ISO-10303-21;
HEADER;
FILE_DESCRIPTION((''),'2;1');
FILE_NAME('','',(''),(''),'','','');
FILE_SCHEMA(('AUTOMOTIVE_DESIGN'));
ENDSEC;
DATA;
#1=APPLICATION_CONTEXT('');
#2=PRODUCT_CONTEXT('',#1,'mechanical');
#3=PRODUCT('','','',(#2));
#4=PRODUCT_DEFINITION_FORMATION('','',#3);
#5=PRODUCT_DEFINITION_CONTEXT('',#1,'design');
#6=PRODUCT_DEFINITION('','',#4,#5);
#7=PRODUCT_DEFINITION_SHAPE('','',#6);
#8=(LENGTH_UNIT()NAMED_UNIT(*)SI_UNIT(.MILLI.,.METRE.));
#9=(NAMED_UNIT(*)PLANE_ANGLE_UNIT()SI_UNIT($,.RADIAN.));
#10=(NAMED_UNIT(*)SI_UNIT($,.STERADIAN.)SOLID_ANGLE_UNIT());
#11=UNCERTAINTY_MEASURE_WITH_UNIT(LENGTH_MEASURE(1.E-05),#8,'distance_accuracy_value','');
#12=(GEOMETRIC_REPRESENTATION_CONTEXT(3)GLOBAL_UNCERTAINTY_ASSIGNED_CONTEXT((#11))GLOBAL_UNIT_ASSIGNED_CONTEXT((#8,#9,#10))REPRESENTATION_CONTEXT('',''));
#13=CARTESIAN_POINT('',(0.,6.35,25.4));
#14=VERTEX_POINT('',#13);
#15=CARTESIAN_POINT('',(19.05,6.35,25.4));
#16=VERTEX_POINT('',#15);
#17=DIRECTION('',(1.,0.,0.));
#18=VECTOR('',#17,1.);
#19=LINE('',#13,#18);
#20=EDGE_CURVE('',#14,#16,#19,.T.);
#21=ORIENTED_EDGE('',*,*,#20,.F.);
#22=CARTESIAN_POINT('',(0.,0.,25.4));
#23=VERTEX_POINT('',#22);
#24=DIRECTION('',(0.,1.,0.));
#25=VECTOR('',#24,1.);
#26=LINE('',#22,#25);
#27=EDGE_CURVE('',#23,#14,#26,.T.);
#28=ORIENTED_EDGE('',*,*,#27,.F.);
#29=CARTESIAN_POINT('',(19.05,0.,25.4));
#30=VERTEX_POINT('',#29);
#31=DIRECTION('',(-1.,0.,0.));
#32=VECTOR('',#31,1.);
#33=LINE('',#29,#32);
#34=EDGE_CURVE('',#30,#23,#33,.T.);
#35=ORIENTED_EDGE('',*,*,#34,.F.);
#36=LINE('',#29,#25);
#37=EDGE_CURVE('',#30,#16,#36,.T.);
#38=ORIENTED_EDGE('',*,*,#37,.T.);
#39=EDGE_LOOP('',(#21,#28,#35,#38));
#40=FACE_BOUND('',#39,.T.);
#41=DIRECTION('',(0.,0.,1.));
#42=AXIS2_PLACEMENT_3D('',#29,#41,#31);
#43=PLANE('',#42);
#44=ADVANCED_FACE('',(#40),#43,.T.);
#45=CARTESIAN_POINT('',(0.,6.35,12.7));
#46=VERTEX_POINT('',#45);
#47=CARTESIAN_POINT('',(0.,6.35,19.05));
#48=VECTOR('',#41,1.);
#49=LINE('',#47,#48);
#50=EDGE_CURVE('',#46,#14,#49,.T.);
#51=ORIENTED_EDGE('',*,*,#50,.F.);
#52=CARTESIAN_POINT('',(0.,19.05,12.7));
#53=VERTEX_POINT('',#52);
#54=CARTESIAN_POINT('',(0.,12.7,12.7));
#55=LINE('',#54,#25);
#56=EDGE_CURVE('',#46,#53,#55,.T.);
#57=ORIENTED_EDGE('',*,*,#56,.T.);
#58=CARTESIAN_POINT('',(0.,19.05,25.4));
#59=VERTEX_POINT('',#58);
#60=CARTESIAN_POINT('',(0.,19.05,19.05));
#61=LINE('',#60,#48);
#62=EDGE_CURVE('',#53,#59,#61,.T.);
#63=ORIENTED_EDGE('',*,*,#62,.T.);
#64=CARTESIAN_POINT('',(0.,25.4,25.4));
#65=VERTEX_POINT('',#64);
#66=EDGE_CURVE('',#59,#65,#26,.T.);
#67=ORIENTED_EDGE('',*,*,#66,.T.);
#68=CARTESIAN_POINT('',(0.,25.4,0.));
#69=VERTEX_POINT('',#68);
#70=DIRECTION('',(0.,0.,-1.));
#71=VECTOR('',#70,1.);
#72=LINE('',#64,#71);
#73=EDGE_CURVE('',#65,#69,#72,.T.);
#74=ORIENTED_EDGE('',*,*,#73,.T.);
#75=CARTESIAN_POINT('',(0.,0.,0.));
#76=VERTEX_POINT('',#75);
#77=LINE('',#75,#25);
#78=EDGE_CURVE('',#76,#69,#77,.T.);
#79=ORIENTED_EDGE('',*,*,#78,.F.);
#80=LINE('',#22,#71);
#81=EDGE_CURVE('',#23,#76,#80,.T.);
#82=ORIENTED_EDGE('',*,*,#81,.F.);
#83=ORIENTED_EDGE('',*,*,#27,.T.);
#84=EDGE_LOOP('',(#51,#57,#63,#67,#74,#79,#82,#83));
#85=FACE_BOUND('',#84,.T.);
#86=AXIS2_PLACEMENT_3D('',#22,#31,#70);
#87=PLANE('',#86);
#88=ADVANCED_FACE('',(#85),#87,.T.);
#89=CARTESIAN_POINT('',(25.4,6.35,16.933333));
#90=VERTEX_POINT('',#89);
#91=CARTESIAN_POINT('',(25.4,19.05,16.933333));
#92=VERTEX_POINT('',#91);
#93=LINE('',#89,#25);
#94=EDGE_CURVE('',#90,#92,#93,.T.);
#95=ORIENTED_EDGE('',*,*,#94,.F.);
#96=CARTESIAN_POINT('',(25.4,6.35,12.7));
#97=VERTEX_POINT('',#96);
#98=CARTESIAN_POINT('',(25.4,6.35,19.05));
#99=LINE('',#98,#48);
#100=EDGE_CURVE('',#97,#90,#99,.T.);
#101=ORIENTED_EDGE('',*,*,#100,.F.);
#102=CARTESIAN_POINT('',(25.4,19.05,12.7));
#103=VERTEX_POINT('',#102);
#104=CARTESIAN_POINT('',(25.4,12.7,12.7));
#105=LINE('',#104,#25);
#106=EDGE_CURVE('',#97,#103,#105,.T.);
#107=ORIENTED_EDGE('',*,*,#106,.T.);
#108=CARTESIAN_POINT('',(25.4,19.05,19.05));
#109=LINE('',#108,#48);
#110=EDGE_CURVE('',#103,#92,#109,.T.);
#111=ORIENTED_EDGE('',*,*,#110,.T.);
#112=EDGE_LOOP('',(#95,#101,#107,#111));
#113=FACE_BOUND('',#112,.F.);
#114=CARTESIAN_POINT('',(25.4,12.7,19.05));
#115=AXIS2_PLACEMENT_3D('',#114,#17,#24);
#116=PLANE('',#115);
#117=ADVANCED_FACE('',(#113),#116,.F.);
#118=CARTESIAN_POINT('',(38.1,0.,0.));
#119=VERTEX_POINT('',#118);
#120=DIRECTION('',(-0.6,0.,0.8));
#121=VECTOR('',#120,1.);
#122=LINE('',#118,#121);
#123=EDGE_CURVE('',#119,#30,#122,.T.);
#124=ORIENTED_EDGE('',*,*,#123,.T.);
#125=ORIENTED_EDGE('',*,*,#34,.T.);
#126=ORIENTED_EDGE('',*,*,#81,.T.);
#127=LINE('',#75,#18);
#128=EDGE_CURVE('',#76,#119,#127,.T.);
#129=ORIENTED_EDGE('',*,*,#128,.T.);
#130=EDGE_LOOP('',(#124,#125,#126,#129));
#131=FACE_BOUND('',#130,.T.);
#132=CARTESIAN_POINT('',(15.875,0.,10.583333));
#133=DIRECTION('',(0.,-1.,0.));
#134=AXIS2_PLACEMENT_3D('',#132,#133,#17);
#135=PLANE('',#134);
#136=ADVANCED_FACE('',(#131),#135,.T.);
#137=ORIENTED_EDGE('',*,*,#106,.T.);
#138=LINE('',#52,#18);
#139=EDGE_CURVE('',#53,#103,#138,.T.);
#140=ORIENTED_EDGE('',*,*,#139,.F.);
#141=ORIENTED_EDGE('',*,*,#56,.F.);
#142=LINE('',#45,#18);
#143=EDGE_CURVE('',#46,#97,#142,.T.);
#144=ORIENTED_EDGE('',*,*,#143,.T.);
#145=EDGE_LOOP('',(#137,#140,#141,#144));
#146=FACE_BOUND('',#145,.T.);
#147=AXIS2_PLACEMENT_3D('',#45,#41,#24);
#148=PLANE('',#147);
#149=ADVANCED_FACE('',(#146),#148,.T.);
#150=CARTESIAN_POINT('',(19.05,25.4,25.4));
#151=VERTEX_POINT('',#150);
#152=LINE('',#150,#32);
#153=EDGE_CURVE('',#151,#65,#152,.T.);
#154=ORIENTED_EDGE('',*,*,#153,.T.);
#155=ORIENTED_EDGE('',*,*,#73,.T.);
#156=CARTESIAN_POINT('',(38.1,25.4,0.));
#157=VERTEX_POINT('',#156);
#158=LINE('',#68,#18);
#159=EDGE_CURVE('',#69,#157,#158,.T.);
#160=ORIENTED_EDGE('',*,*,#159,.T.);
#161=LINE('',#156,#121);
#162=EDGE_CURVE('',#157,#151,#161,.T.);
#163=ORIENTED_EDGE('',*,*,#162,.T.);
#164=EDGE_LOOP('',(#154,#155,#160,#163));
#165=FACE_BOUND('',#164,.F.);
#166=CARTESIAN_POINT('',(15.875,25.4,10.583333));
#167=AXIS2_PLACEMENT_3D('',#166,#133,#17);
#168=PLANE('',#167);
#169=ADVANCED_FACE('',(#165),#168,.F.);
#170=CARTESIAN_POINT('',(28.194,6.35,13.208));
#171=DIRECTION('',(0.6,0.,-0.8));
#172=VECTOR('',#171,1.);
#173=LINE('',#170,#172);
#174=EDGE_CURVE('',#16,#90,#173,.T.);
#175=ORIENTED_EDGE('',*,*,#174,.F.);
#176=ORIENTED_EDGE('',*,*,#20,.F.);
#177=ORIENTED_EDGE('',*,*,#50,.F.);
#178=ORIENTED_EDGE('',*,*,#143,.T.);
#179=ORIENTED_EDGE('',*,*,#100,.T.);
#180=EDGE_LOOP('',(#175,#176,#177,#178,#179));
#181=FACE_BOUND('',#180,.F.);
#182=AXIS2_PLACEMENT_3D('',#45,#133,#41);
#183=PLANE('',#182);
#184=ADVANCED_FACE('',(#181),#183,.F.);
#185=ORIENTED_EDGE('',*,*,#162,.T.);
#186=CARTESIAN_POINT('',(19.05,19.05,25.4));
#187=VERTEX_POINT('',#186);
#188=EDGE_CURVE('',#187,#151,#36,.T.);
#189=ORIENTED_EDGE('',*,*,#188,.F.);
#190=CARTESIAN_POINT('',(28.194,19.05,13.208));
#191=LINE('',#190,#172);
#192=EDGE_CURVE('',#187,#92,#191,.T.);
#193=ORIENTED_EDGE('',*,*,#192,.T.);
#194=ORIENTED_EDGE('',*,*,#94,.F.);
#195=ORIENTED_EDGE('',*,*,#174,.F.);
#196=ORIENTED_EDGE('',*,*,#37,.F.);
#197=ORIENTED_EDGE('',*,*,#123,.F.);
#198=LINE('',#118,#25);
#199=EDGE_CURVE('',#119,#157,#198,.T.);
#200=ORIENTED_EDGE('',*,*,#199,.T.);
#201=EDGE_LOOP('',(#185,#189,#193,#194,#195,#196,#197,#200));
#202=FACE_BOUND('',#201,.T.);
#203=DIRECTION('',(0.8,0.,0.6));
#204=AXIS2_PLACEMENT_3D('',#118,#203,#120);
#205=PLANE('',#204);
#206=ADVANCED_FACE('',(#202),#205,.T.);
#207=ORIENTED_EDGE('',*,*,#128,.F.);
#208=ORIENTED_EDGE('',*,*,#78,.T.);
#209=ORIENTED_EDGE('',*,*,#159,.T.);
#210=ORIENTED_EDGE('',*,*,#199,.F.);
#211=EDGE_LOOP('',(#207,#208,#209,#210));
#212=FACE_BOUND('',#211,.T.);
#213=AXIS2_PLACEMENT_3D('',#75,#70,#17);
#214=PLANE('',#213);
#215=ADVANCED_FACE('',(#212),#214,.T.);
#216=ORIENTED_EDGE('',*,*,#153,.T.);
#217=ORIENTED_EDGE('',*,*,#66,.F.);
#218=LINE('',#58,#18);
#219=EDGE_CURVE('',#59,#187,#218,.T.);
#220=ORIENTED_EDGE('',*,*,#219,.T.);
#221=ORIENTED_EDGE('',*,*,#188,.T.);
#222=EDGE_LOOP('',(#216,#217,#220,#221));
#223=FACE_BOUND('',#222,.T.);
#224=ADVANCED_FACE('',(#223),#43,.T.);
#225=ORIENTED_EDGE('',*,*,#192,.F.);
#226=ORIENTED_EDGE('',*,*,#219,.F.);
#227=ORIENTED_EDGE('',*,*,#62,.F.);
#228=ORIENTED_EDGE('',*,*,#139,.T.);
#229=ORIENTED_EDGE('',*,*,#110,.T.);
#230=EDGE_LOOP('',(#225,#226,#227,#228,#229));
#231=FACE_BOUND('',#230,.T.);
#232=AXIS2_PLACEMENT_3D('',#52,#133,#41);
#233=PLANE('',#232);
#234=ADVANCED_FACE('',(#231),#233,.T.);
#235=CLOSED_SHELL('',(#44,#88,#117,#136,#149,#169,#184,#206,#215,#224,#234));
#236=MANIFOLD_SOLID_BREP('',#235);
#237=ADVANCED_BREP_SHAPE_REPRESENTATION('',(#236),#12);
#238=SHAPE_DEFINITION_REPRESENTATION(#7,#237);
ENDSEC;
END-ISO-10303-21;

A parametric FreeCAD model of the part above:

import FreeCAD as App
import Part
import Sketcher
Q = App.Units.Quantity


def add_polygon(sketch, points):
    """Adds a closed chain of lines whose ends are joined by coincident constraints."""
    first, n = sketch.GeometryCount, len(points)
    for a, b in zip(points, points[1:] + points[:1]):
        sketch.addGeometry(Part.LineSegment(App.Vector(*a, 0), App.Vector(*b, 0)), False)
    for i in range(n):
        sketch.addConstraint(Sketcher.Constraint("Coincident", first + i, 2, first + (i + 1) % n, 1))

doc = App.newDocument("Part")
params = doc.addObject("Spreadsheet::Sheet", "Params")
for row, (alias, value) in enumerate([
    ("sketch1_height", "1 in"),
    ("sketch1_width", "1.5 in"),
    ("sketch1_width2", "0.75 in"),
    ("pad1_length", "1 in"),
    ("sketch2_width", "0.5 in"),
    ("pocket1_length", "1 in"),
], start=1):
    params.set(f"A{row}", alias)
    params.set(f"B{row}", "=" + value)
    params.setAlias(f"B{row}", alias)

body = doc.addObject("PartDesign::Body", "Body")

sketch1 = body.newObject("Sketcher::SketchObject", "Sketch")
sketch1.AttachmentSupport = (doc.getObject("XZ_Plane"), [""])
sketch1.MapMode = "FlatFace"
add_polygon(sketch1, [(0, 25.4), (0, 0), (38.1, 0), (19.05, 25.4)])
sketch1.addConstraint([
    Sketcher.Constraint("Vertical", 0),
    Sketcher.Constraint("Horizontal", 1),
    Sketcher.Constraint("Horizontal", 3),
    Sketcher.Constraint("Coincident", 0, 2, -1, 1),
    Sketcher.Constraint("DistanceY", 0, 2, 0, 1, Q("1 in")),
    Sketcher.Constraint("DistanceX", 1, 1, 1, 2, Q("1.5 in")),
    Sketcher.Constraint("DistanceX", 3, 2, 3, 1, Q("0.75 in")),
])
sketch1.setExpression("Constraints[8]", "Params.sketch1_height")
sketch1.setExpression("Constraints[9]", "Params.sketch1_width")
sketch1.setExpression("Constraints[10]", "Params.sketch1_width2")
pad1 = body.newObject("PartDesign::Pad", "Pad")
pad1.Profile = sketch1
pad1.setExpression("Length", "Params.pad1_length")
pad1.Reversed = True

sketch2 = body.newObject("Sketcher::SketchObject", "Sketch001")
sketch2.AttachmentSupport = (doc.getObject("YZ_Plane"), [""])
sketch2.MapMode = "FlatFace"
add_polygon(sketch2, [(6.35, 25.4), (6.35, 12.7), (19.05, 12.7), (19.05, 25.4)])
sketch2.addConstraint([
    Sketcher.Constraint("Vertical", 0),
    Sketcher.Constraint("Horizontal", 1),
    Sketcher.Constraint("Vertical", 2),
    Sketcher.Constraint("Horizontal", 3),
    Sketcher.Constraint("Equal", 3, 0),
    Sketcher.Constraint("DistanceX", 1, 1, 1, 2, Q("0.5 in")),
    Sketcher.Constraint("DistanceY", -1, 1, 2, 2, Q("1 in")),
    Sketcher.Constraint("DistanceX", -1, 1, 0, 2, Q("0.25 in")),
])
sketch2.setExpression("Constraints[9]", "Params.sketch2_width")
pocket1 = body.newObject("PartDesign::Pocket", "Pocket")
pocket1.Profile = sketch2
pocket1.setExpression("Length", "Params.pocket1_length")
pocket1.Reversed = True

doc.recompute()
